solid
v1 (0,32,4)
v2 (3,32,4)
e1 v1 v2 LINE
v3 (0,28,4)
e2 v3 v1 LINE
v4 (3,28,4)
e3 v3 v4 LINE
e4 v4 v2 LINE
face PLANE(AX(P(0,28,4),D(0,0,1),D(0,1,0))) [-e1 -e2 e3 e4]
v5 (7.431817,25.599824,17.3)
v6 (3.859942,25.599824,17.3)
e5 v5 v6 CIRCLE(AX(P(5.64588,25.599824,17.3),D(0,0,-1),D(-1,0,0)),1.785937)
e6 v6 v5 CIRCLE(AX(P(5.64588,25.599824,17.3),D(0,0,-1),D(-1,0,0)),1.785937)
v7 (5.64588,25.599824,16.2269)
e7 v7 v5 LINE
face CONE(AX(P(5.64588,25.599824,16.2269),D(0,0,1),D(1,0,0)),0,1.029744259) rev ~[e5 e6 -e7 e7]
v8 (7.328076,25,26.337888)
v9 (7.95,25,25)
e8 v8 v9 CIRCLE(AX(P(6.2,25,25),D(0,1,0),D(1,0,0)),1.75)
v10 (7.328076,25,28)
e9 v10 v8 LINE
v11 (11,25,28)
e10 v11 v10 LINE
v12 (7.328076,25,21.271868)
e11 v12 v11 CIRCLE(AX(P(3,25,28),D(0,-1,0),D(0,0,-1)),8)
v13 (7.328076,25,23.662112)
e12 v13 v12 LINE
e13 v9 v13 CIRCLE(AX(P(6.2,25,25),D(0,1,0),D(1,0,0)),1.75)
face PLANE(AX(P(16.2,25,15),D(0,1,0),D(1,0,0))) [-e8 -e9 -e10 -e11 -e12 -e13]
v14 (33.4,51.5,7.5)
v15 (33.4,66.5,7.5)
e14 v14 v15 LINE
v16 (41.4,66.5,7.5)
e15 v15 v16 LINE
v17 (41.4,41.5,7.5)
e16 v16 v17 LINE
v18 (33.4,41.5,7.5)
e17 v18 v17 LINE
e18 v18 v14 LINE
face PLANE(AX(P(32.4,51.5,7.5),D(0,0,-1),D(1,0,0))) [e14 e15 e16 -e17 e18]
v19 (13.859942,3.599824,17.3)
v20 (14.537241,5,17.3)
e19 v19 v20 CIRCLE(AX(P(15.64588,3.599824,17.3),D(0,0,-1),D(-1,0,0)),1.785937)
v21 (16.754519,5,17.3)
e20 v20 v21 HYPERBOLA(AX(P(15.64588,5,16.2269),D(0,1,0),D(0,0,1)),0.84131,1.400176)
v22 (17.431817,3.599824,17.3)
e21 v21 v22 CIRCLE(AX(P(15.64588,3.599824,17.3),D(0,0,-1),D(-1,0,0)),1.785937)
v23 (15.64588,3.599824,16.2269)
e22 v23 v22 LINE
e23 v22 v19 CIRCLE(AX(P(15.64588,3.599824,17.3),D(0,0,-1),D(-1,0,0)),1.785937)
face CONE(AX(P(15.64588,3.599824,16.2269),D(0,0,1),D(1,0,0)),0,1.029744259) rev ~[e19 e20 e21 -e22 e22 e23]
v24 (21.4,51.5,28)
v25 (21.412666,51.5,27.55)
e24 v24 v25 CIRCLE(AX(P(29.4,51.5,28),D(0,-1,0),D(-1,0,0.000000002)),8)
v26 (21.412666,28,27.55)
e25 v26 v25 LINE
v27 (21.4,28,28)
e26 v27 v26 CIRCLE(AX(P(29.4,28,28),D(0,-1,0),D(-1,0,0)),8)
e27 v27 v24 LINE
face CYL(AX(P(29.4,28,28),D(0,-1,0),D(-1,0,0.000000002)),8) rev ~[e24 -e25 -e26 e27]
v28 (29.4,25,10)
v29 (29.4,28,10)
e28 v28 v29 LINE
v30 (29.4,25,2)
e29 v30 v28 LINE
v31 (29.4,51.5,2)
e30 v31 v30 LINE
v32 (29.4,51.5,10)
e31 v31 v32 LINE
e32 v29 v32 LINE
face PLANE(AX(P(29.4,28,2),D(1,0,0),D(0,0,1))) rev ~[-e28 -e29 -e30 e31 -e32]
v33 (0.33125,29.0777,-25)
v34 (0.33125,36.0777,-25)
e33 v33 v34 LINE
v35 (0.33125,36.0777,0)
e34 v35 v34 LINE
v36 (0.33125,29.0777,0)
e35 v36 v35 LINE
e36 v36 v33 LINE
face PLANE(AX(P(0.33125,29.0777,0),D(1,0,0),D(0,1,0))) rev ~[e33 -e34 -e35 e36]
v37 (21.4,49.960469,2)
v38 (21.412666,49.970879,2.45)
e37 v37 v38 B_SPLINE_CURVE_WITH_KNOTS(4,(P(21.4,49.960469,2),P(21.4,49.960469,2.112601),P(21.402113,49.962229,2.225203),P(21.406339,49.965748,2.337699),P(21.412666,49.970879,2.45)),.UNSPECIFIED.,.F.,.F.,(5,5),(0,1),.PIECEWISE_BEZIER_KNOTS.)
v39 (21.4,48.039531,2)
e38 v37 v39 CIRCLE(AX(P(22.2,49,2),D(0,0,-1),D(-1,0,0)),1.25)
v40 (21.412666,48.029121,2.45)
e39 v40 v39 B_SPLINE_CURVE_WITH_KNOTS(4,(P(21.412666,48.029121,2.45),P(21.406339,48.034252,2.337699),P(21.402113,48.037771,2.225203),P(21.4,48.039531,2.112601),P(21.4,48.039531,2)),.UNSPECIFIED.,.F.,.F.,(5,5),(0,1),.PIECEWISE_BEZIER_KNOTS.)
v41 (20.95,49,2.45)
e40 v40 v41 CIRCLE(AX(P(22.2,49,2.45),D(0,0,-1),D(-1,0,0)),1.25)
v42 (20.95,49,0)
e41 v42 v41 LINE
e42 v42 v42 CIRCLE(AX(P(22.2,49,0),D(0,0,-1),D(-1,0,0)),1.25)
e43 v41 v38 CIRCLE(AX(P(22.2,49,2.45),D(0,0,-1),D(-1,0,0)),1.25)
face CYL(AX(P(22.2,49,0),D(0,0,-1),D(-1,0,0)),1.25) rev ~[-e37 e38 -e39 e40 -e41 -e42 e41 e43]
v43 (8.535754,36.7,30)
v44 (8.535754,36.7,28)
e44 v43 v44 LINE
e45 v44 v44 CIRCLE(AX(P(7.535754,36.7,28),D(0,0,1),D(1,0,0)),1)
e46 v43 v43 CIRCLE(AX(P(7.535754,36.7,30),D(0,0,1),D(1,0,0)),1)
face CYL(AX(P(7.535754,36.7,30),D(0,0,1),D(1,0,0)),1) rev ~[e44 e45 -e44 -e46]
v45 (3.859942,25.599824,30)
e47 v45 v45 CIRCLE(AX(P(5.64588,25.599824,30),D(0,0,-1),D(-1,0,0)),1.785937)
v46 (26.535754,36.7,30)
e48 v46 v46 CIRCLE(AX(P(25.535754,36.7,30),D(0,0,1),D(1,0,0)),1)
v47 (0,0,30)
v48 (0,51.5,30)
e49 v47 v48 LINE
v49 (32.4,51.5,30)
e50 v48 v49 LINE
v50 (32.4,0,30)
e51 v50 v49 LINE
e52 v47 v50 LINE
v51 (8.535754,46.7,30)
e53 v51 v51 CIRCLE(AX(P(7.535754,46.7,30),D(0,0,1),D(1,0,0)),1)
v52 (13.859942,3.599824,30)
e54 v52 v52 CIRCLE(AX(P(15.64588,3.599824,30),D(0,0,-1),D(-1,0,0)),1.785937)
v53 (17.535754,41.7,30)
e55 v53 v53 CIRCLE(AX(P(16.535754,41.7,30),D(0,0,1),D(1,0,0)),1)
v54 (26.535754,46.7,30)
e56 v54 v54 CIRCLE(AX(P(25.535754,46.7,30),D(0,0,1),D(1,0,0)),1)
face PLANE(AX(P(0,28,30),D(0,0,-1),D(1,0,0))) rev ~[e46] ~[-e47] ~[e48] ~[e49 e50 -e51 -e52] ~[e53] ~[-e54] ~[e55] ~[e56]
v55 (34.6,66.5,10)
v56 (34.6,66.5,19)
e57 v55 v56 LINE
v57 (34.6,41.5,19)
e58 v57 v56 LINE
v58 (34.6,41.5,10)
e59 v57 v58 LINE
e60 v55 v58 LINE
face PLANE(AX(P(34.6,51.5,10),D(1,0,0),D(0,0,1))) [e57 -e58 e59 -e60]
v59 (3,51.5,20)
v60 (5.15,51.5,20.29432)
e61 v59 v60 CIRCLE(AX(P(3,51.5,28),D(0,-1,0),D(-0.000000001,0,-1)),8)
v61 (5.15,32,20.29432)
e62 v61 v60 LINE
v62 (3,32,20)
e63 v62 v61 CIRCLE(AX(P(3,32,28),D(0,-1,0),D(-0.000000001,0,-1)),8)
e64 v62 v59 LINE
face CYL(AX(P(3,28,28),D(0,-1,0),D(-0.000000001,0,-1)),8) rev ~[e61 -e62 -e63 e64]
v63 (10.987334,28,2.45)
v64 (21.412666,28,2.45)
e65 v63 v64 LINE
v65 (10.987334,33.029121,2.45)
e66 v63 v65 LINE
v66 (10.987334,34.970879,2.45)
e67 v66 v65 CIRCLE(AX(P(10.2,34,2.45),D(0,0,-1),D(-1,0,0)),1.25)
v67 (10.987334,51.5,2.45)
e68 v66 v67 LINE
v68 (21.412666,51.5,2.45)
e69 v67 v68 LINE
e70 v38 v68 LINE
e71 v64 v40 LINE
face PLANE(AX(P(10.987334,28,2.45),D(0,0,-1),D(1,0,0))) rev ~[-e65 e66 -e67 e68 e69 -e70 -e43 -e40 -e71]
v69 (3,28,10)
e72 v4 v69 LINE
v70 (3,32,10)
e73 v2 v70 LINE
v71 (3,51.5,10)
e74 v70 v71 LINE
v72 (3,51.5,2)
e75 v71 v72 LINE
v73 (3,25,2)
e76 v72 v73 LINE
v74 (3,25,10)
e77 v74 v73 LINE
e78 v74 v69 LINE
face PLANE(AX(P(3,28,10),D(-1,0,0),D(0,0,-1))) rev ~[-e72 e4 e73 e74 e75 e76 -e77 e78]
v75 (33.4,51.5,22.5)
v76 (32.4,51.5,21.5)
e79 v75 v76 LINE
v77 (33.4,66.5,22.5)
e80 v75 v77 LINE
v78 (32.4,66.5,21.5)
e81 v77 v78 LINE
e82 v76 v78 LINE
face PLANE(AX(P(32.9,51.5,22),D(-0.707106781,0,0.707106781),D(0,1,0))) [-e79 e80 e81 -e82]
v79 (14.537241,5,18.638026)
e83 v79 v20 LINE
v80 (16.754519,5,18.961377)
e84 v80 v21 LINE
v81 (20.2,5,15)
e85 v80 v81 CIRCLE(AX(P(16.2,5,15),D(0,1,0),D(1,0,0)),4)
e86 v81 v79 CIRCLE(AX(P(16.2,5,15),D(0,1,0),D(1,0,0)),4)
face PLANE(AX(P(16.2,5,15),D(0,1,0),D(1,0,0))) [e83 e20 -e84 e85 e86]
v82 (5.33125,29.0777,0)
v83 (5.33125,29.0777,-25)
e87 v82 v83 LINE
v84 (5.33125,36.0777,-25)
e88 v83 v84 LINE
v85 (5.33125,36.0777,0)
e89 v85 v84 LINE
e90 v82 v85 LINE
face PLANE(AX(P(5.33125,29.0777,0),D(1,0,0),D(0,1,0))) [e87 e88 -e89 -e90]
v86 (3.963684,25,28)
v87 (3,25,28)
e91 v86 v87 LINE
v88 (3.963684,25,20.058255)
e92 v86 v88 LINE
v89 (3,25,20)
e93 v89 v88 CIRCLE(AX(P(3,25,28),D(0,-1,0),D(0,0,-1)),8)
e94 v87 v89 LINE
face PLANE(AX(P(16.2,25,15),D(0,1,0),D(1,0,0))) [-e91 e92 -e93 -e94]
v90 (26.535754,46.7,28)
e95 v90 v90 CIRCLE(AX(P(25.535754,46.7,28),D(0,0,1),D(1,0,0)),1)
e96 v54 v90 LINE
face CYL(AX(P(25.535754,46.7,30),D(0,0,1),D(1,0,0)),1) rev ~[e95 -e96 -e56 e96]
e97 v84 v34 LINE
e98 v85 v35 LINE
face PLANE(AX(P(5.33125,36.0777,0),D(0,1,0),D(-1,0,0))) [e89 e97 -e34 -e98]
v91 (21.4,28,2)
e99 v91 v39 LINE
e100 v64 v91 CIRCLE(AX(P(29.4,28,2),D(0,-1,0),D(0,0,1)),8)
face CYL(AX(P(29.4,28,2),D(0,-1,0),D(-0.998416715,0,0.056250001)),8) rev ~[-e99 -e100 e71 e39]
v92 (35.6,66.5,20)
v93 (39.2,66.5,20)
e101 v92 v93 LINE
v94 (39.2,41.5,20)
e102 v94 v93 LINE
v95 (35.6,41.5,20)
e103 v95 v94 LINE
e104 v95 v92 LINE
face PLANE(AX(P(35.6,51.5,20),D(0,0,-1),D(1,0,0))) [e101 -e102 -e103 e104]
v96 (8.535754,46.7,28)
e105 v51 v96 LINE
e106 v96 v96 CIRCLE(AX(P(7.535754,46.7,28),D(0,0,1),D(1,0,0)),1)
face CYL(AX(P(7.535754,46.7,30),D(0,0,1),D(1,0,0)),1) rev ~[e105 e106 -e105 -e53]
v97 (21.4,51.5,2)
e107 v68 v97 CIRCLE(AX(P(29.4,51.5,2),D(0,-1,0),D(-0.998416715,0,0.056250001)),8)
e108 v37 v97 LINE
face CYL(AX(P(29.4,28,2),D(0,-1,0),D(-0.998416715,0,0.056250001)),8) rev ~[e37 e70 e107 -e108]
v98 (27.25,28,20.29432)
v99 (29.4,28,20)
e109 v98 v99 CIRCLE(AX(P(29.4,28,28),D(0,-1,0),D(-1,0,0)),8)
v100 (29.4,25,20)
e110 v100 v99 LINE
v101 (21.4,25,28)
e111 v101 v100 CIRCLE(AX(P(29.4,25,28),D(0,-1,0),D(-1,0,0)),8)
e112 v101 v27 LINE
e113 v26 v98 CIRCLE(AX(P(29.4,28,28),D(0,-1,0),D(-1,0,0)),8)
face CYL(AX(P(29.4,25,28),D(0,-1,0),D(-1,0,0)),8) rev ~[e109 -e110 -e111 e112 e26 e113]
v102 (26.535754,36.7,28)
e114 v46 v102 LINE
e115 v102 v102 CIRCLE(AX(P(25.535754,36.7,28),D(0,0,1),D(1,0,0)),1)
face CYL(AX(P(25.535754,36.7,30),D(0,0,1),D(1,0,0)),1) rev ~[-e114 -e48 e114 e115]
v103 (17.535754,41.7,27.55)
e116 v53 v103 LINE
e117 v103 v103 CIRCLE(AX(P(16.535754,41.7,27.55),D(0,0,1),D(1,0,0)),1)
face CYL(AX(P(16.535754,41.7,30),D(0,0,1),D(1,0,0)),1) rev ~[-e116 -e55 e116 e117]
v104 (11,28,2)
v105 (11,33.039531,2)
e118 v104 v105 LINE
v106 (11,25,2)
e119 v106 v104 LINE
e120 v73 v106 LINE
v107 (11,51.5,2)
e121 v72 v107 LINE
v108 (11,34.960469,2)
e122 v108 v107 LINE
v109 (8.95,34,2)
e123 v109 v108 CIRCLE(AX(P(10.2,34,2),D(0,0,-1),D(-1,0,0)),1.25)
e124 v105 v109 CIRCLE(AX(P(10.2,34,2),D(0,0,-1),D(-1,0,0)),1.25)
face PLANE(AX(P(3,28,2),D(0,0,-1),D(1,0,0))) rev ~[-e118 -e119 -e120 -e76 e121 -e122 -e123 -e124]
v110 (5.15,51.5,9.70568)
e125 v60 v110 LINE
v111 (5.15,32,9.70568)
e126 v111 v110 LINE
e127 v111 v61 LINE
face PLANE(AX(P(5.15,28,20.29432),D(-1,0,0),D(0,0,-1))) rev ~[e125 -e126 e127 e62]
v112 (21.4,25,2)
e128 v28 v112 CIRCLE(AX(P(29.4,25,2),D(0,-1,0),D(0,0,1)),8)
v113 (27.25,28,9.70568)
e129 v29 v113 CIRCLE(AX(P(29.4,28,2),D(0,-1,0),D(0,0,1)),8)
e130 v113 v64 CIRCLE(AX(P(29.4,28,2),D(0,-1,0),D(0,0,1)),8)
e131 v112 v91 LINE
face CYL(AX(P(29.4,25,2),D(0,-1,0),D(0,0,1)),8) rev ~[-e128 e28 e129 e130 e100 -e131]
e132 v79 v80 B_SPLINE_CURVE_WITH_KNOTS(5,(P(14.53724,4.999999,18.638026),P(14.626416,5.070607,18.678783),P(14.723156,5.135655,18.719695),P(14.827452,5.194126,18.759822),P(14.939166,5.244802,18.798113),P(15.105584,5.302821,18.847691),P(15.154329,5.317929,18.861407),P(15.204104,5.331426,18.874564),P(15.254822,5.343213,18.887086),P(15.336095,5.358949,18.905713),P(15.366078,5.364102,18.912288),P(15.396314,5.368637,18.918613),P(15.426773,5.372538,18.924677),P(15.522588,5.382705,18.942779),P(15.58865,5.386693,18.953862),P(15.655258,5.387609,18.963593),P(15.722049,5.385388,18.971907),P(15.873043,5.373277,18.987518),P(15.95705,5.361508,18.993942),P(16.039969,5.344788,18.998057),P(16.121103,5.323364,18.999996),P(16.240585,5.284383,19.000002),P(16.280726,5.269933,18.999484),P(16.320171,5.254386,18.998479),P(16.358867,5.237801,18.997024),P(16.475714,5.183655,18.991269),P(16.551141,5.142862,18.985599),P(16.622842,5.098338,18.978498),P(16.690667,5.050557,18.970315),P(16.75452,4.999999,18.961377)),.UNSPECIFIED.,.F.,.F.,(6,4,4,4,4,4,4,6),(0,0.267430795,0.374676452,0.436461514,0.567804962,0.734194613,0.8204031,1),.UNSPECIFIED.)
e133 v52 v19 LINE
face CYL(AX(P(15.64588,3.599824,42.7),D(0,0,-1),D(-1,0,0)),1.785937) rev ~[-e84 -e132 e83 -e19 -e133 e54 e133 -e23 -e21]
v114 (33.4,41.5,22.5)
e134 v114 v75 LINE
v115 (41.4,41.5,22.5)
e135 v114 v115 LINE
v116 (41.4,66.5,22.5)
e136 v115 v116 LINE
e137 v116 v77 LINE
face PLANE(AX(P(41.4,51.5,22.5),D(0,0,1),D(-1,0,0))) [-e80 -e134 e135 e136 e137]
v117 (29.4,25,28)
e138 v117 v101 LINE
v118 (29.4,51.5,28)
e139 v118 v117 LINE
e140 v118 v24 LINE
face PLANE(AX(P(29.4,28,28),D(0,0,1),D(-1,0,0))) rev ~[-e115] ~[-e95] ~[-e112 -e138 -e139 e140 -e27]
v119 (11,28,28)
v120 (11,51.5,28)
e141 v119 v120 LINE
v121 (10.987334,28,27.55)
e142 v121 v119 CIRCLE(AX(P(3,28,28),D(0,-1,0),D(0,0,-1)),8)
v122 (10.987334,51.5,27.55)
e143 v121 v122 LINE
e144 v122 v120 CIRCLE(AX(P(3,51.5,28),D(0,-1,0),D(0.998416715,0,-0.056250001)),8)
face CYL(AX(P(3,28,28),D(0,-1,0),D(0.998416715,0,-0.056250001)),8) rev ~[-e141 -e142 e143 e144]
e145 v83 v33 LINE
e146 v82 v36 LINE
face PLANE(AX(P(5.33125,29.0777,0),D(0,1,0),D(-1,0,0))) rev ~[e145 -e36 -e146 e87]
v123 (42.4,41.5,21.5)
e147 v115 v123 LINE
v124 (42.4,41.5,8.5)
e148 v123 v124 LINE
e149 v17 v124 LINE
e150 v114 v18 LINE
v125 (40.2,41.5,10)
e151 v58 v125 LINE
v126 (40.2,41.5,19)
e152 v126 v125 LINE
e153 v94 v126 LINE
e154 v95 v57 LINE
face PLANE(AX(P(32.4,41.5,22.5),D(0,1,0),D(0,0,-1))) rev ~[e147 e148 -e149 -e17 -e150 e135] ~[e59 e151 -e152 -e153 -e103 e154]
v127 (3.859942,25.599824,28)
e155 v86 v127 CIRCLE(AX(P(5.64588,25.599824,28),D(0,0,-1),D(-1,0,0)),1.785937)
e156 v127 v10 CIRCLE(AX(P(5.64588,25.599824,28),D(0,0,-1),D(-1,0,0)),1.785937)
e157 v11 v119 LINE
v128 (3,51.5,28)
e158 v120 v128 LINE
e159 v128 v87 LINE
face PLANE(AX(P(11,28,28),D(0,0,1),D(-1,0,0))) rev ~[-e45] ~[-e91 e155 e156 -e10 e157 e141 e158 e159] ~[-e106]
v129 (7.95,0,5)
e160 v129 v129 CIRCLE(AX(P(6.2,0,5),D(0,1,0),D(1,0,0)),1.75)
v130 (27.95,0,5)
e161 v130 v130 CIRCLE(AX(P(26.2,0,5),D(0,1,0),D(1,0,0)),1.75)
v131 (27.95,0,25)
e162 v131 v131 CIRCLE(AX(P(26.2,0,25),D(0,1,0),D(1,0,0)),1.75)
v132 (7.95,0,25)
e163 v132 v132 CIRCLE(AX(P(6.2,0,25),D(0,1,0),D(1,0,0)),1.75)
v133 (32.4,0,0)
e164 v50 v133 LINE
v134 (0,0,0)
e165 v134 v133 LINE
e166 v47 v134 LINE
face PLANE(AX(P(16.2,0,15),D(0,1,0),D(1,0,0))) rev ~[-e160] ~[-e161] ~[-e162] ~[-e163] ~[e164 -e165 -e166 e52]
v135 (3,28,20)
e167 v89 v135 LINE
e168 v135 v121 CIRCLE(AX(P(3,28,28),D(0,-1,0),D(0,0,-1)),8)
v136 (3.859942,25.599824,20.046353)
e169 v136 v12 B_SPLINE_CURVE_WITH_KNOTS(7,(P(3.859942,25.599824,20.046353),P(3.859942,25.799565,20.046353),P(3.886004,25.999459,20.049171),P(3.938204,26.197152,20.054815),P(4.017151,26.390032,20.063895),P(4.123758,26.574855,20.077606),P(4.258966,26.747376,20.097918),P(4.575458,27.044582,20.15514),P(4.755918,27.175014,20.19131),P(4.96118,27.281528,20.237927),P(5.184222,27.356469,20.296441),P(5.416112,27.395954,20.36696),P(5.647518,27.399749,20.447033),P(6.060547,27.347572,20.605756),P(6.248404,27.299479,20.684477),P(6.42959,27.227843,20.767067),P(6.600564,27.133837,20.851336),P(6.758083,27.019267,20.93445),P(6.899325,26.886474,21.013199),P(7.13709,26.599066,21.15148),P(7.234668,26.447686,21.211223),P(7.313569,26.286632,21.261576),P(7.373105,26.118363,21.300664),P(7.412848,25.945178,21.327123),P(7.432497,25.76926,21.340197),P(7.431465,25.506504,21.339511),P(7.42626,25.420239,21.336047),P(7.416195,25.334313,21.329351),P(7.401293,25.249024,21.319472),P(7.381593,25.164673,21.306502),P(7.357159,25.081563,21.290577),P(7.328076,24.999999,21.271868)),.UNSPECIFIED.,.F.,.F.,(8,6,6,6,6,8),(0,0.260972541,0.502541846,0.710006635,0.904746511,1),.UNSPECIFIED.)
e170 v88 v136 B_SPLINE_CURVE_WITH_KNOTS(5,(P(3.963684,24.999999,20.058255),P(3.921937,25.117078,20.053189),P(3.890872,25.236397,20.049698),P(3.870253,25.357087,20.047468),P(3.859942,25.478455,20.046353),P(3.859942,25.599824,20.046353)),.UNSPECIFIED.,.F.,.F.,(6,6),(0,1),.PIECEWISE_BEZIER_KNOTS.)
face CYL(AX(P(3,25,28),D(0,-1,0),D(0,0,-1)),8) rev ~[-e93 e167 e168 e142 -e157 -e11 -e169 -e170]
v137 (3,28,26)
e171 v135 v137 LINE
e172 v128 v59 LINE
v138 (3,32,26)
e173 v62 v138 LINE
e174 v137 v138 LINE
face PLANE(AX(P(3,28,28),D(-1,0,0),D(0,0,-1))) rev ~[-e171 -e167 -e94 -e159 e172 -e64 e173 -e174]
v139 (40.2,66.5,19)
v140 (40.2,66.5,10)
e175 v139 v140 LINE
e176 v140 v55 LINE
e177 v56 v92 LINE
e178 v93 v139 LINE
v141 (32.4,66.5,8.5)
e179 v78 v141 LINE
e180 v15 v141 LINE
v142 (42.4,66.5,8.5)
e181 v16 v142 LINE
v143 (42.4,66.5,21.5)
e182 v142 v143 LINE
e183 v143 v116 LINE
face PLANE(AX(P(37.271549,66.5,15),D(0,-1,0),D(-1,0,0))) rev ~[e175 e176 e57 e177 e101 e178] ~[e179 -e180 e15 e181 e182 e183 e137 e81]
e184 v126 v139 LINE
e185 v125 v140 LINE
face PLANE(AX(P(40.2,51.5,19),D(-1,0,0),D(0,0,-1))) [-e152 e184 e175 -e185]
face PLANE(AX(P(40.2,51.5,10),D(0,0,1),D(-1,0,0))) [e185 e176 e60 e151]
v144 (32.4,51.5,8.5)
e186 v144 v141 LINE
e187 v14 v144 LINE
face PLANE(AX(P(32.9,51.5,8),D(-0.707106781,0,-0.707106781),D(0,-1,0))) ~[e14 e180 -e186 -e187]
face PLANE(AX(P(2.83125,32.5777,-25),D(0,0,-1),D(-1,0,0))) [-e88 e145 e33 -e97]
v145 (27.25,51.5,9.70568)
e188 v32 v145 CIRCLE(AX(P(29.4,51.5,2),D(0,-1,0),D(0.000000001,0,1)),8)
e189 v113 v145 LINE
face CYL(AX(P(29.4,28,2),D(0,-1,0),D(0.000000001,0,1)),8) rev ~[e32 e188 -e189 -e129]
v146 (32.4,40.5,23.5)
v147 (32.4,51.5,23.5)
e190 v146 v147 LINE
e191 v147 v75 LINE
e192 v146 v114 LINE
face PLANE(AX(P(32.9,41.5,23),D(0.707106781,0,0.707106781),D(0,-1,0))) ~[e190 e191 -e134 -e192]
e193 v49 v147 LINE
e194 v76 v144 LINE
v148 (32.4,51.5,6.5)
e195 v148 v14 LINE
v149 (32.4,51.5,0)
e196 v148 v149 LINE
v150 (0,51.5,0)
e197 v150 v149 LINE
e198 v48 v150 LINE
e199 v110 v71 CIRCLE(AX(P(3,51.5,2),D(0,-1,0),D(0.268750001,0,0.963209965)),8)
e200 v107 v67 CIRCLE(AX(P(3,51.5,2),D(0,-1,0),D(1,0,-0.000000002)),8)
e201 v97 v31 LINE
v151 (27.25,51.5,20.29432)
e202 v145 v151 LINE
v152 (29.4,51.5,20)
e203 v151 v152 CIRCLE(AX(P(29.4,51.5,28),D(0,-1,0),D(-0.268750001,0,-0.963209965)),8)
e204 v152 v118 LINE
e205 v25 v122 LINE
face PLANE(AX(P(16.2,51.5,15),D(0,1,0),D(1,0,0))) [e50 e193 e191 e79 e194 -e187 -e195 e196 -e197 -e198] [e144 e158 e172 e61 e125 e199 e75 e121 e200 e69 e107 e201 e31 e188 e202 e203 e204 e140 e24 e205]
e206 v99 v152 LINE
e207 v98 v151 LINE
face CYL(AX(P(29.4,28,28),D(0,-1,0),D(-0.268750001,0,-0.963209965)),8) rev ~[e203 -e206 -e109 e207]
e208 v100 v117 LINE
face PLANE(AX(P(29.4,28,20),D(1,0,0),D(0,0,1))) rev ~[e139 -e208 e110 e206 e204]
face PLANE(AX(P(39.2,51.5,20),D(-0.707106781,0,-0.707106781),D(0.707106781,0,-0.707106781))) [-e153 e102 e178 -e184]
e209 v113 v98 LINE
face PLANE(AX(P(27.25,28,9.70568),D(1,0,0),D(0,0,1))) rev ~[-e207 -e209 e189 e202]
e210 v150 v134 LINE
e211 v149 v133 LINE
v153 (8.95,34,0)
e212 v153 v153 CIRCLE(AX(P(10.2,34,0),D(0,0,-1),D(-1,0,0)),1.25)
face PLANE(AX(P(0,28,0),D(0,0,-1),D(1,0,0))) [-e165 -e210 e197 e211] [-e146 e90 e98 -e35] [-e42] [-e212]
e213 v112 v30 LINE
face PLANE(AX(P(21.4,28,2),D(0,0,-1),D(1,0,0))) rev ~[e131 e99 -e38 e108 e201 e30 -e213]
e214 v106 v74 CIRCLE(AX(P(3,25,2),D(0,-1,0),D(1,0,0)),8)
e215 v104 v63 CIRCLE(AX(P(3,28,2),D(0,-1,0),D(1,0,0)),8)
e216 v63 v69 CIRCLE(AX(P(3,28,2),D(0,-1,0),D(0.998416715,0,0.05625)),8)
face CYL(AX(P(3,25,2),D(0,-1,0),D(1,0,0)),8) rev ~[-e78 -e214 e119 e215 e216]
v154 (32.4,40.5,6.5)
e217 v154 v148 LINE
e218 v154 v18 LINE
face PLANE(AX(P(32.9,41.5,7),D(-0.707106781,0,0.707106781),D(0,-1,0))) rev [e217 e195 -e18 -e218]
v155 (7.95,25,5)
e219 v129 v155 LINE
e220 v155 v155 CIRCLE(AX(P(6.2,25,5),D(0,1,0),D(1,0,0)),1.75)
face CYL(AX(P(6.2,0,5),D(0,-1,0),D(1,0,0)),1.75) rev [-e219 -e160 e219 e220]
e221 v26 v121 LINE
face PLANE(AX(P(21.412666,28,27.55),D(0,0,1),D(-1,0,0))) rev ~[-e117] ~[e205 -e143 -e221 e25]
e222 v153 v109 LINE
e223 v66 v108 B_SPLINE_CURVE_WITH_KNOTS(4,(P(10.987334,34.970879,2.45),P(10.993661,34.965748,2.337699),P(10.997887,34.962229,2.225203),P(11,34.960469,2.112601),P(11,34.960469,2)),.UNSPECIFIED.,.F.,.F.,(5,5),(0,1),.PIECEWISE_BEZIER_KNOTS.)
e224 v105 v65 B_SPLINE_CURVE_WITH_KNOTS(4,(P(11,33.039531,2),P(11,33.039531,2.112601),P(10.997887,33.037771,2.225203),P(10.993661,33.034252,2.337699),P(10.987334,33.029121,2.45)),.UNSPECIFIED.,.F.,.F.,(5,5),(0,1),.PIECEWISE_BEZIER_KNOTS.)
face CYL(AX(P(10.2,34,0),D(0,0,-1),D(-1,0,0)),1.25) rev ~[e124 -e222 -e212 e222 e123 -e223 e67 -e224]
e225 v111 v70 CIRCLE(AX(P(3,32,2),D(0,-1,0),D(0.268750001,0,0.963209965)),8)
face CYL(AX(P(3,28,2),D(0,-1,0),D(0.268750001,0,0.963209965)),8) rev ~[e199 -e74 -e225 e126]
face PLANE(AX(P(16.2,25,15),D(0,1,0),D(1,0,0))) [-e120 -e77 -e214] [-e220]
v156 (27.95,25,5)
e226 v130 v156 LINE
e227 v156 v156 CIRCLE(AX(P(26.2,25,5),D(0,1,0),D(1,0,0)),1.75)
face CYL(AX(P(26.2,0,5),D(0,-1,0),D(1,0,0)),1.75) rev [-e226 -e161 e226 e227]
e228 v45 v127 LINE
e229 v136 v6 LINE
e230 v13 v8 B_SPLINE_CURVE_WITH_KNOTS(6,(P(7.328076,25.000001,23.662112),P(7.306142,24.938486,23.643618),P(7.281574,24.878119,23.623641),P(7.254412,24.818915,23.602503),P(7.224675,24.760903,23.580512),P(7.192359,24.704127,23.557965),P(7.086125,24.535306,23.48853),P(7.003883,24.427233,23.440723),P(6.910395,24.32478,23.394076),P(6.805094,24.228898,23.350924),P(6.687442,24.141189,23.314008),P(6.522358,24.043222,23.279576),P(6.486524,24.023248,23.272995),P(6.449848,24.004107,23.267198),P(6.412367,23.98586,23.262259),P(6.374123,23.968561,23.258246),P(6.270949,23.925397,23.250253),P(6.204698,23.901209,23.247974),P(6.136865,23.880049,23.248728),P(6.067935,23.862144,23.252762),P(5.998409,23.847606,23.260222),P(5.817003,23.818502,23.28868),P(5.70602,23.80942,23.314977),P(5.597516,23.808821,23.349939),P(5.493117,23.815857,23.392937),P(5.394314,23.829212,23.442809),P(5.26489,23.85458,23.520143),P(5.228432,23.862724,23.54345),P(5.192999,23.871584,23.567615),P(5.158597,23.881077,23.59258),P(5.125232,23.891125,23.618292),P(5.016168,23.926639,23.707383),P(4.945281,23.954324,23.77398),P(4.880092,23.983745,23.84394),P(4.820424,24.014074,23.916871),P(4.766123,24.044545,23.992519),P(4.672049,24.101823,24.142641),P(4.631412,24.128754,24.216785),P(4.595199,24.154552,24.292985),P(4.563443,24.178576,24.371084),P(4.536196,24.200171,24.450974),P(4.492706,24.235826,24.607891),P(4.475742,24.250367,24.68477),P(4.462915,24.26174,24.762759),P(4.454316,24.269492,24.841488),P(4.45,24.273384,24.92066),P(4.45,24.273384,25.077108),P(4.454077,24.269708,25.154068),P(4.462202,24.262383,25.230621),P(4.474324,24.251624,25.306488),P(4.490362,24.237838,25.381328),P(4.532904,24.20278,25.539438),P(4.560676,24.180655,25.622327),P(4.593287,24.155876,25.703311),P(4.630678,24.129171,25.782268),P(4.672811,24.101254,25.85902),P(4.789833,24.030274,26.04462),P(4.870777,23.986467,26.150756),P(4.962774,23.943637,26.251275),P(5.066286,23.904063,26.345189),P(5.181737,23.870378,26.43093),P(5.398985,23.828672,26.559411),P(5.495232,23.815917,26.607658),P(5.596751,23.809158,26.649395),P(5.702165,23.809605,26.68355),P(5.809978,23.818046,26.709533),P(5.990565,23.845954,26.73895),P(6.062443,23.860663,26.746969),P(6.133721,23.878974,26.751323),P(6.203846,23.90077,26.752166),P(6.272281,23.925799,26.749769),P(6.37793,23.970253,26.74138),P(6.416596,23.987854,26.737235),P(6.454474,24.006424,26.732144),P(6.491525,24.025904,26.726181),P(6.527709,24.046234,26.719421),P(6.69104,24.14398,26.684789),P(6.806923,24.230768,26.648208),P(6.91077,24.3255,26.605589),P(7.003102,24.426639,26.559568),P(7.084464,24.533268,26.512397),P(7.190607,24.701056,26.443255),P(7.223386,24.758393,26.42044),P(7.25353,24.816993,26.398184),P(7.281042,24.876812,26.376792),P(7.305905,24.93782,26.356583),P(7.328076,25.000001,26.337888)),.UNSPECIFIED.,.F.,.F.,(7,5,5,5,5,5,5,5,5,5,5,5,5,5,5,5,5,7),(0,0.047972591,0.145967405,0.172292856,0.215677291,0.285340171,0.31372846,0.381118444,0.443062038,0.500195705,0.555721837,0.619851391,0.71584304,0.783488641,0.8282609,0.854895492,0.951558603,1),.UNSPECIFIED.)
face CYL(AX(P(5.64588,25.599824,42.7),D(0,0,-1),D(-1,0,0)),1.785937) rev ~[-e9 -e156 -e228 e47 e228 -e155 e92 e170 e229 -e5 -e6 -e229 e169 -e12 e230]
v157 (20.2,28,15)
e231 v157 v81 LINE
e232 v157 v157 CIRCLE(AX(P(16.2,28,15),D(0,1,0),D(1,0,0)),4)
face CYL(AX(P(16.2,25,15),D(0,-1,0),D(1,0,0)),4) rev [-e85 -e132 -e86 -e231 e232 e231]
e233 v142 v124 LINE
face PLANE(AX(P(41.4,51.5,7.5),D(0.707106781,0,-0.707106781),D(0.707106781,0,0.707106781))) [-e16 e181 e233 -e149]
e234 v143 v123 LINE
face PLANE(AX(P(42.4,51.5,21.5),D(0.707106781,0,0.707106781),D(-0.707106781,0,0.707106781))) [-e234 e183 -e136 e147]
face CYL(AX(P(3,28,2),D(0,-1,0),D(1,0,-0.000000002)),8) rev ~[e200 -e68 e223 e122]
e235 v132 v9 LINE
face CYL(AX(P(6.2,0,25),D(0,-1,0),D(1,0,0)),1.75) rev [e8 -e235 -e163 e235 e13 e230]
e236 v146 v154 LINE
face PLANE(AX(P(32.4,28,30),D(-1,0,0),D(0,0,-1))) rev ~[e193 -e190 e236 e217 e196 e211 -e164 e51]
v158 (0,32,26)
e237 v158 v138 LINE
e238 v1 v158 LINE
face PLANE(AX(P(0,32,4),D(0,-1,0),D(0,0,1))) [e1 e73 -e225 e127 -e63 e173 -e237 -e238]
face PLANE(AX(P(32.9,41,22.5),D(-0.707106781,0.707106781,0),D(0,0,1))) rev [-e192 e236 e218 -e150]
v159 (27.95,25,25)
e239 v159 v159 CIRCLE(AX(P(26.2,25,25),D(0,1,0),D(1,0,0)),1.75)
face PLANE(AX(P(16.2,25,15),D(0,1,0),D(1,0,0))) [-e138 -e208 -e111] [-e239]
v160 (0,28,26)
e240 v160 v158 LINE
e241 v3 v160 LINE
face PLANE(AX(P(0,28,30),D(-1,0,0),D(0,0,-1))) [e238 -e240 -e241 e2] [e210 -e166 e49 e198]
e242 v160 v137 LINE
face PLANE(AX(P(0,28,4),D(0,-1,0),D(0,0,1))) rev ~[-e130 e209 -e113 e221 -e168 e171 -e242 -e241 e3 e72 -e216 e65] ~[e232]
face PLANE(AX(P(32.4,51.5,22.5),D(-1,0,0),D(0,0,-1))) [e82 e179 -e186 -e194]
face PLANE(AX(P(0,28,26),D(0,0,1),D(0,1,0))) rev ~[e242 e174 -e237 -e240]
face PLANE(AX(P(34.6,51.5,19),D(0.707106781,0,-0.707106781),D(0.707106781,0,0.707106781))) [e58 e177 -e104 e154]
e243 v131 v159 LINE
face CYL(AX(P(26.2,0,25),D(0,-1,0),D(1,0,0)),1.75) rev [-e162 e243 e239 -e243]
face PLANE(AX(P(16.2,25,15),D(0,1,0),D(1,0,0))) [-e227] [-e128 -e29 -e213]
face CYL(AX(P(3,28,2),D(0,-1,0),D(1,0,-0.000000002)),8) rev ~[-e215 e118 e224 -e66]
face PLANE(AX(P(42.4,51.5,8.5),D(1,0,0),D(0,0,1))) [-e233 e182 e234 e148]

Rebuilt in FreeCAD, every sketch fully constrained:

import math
import FreeCAD as App
import Part
import Sketcher
from FreeCAD import Vector


def edges_at(feature, points):
    """Names of the edges that pass closest to the given points."""
    edges = feature.Shape.Edges
    near = lambda p: min(range(len(edges)), key=lambda i: edges[i].distToShape(Part.Vertex(*p))[0])
    return sorted({f"Edge{near(p) + 1}" for p in points})


def add_polygon(sketch, points):
    """Adds a closed chain of lines whose ends are joined by coincident constraints."""
    first, n = sketch.GeometryCount, len(points)
    for a, b in zip(points, points[1:] + points[:1]):
        sketch.addGeometry(Part.LineSegment(App.Vector(*a, 0), App.Vector(*b, 0)), False)
    for i in range(n):
        sketch.addConstraint(Sketcher.Constraint("Coincident", first + i, 2, first + (i + 1) % n, 1))

doc = App.newDocument("Part")
body = doc.addObject("PartDesign::Body", "Body")

sketch1 = doc.addObject("Sketcher::SketchObject", "Sketch")
body.addObject(sketch1)
sketch1.AttachmentSupport = (doc.XZ_Plane, [""])
sketch1.MapMode = "FlatFace"
add_polygon(sketch1, [(0, 0), (0, 30), (32.4, 30), (32.4, 0)])
sketch1.addGeometry(Part.Circle(Vector(6.2, 25, 0), Vector(0, 0, 1), 1.8), False)
sketch1.addGeometry(Part.Circle(Vector(26.2, 25, 0), Vector(0, 0, 1), 1.8), False)
sketch1.addGeometry(Part.Circle(Vector(6.2, 5, 0), Vector(0, 0, 1), 1.8), False)
sketch1.addGeometry(Part.Circle(Vector(26.2, 5, 0), Vector(0, 0, 1), 1.8), False)
sketch1.addConstraint([
    Sketcher.Constraint("Vertical", 0),
    Sketcher.Constraint("Horizontal", 1),
    Sketcher.Constraint("Vertical", 2),
    Sketcher.Constraint("Horizontal", 3),
    Sketcher.Constraint("Coincident", 3, 2, -1, 1),
    Sketcher.Constraint("Equal", 4, 5),
    Sketcher.Constraint("Equal", 5, 6),
    Sketcher.Constraint("Equal", 6, 7),
    Sketcher.Constraint("Horizontal", 4, 3, 5, 3),
    Sketcher.Constraint("Horizontal", 6, 3, 7, 3),
    Sketcher.Constraint("Vertical", 4, 3, 6, 3),
    Sketcher.Constraint("Vertical", 5, 3, 7, 3),
    Sketcher.Constraint("Diameter", 4, 3.5),
    Sketcher.Constraint("DistanceY", 0, 1, 0, 2, 30.0),
    Sketcher.Constraint("DistanceX", 1, 1, 1, 2, 32.4),
    Sketcher.Constraint("DistanceY", -1, 1, 4, 3, 25.0),
    Sketcher.Constraint("DistanceY", -1, 1, 6, 3, 5.0),
    Sketcher.Constraint("DistanceX", 4, 3, 5, 3, 20.0),
    Sketcher.Constraint("DistanceX", -1, 1, 4, 3, 6.2),
])
pad1 = doc.addObject("PartDesign::Pad", "Pad")
body.addObject(pad1)
pad1.Profile = sketch1
pad1.Length = 25
pad1.Reversed = True

sketch2 = doc.addObject("Sketcher::SketchObject", "Sketch001")
body.addObject(sketch2)
sketch2.AttachmentSupport = (doc.XZ_Plane, [""])
sketch2.MapMode = "FlatFace"
sketch2.AttachmentOffset = App.Placement(Vector(0, 0, -25), App.Rotation())
sketch2.addGeometry(Part.Circle(Vector(16.2, 15, 0), Vector(0, 0, 1), 4), False)
sketch2.addConstraint([
    Sketcher.Constraint("Diameter", 0, 8.0),
    Sketcher.Constraint("DistanceY", -1, 1, 0, 3, 15.0),
    Sketcher.Constraint("DistanceX", -1, 1, 0, 3, 16.2),
])
pocket1 = doc.addObject("PartDesign::Pocket", "Pocket")
body.addObject(pocket1)
pocket1.Profile = sketch2
pocket1.Length = 20
pocket1.Reversed = True

sketch3 = doc.addObject("Sketcher::SketchObject", "Sketch002")
body.addObject(sketch3)
sketch3.AttachmentSupport = (doc.XZ_Plane, [""])
sketch3.MapMode = "FlatFace"
sketch3.AttachmentOffset = App.Placement(Vector(0, 0, -25), App.Rotation())
add_polygon(sketch3, [(0, 0), (0, 30), (32.4, 30), (32.4, 0)])
sketch3.addGeometry(Part.LineSegment(Vector(3, 28, 0), Vector(3, 20, 0)), False)
sketch3.addGeometry(Part.ArcOfCircle(Part.Circle(Vector(3, 28, 0), Vector(0, 0, 1), 8), math.radians(-90), math.radians(0)), False)
sketch3.addGeometry(Part.LineSegment(Vector(11, 28, 0), Vector(3, 28, 0)), False)
sketch3.addGeometry(Part.LineSegment(Vector(29.4, 20, 0), Vector(29.4, 28, 0)), False)
sketch3.addGeometry(Part.LineSegment(Vector(29.4, 28, 0), Vector(21.4, 28, 0)), False)
sketch3.addGeometry(Part.ArcOfCircle(Part.Circle(Vector(29.4, 28, 0), Vector(0, 0, 1), 8), math.radians(-180), math.radians(-90)), False)
sketch3.addGeometry(Part.LineSegment(Vector(3, 10, 0), Vector(3, 2, 0)), False)
sketch3.addGeometry(Part.LineSegment(Vector(3, 2, 0), Vector(11, 2, 0)), False)
sketch3.addGeometry(Part.ArcOfCircle(Part.Circle(Vector(3, 2, 0), Vector(0, 0, 1), 8), math.radians(0), math.radians(90)), False)
sketch3.addGeometry(Part.Circle(Vector(16.2, 15, 0), Vector(0, 0, 1), 4), False)
sketch3.addGeometry(Part.LineSegment(Vector(21.4, 2, 0), Vector(29.4, 2, 0)), False)
sketch3.addGeometry(Part.LineSegment(Vector(29.4, 2, 0), Vector(29.4, 10, 0)), False)
sketch3.addGeometry(Part.ArcOfCircle(Part.Circle(Vector(29.4, 2, 0), Vector(0, 0, 1), 8), math.radians(90), math.radians(180)), False)
sketch3.addConstraint([
    Sketcher.Constraint("Coincident", 4, 2, 5, 1),
    Sketcher.Constraint("Coincident", 5, 2, 6, 1),
    Sketcher.Constraint("Coincident", 6, 2, 4, 1),
    Sketcher.Constraint("Coincident", 7, 2, 8, 1),
    Sketcher.Constraint("Coincident", 8, 2, 9, 1),
    Sketcher.Constraint("Coincident", 9, 2, 7, 1),
    Sketcher.Constraint("Coincident", 10, 2, 11, 1),
    Sketcher.Constraint("Coincident", 11, 2, 12, 1),
    Sketcher.Constraint("Coincident", 12, 2, 10, 1),
    Sketcher.Constraint("Coincident", 14, 2, 15, 1),
    Sketcher.Constraint("Coincident", 15, 2, 16, 1),
    Sketcher.Constraint("Coincident", 16, 2, 14, 1),
    Sketcher.Constraint("Vertical", 0),
    Sketcher.Constraint("Horizontal", 1),
    Sketcher.Constraint("Vertical", 2),
    Sketcher.Constraint("Horizontal", 3),
    Sketcher.Constraint("Vertical", 4),
    Sketcher.Constraint("Horizontal", 6),
    Sketcher.Constraint("Vertical", 7),
    Sketcher.Constraint("Horizontal", 8),
    Sketcher.Constraint("Vertical", 10),
    Sketcher.Constraint("Horizontal", 11),
    Sketcher.Constraint("Horizontal", 14),
    Sketcher.Constraint("Vertical", 15),
    Sketcher.Constraint("Coincident", 3, 2, -1, 1),
    Sketcher.Constraint("Coincident", 6, 2, 5, 3),
    Sketcher.Constraint("Coincident", 7, 2, 9, 3),
    Sketcher.Constraint("Coincident", 10, 2, 12, 3),
    Sketcher.Constraint("Coincident", 14, 2, 16, 3),
    Sketcher.Constraint("Equal", 5, 9),
    Sketcher.Constraint("Equal", 9, 12),
    Sketcher.Constraint("Equal", 12, 16),
    Sketcher.Constraint("Horizontal", 5, 3, 9, 3),
    Sketcher.Constraint("Horizontal", 12, 3, 16, 3),
    Sketcher.Constraint("Vertical", 5, 3, 12, 3),
    Sketcher.Constraint("Vertical", 9, 3, 16, 3),
    Sketcher.Constraint("Diameter", 13, 8.0),
    Sketcher.Constraint("Radius", 5, 8.0),
    Sketcher.Constraint("DistanceY", 0, 1, 0, 2, 30.0),
    Sketcher.Constraint("DistanceX", 1, 1, 1, 2, 32.4),
    Sketcher.Constraint("DistanceX", -1, 1, 5, 3, 3.0),
    Sketcher.Constraint("DistanceY", -1, 1, 5, 3, 28.0),
    Sketcher.Constraint("DistanceY", -1, 1, 12, 3, 2.0),
    Sketcher.Constraint("DistanceY", -1, 1, 13, 3, 15.0),
    Sketcher.Constraint("DistanceX", 9, 3, 1, 2, 3.0),
    Sketcher.Constraint("DistanceX", -1, 1, 13, 3, 16.2),
])
pad2 = doc.addObject("PartDesign::Pad", "Pad001")
body.addObject(pad2)
pad2.Profile = sketch3
pad2.Length = 3
pad2.Reversed = True

sketch4 = doc.addObject("Sketcher::SketchObject", "Sketch003")
body.addObject(sketch4)
sketch4.AttachmentSupport = (doc.XZ_Plane, [""])
sketch4.MapMode = "FlatFace"
sketch4.AttachmentOffset = App.Placement(Vector(0, 0, -28), App.Rotation())
add_polygon(sketch4, [(0, 0), (0, 30), (32.4, 30), (32.4, 0)])
sketch4.addGeometry(Part.ArcOfCircle(Part.Circle(Vector(3, 28, 0), Vector(0, 0, 1), 8), math.radians(-90), math.radians(-74.41)), False)
sketch4.addGeometry(Part.LineSegment(Vector(5.15, 20.29, 0), Vector(5.15, 9.71, 0)), False)
sketch4.addGeometry(Part.ArcOfCircle(Part.Circle(Vector(3, 2, 0), Vector(0, 0, 1), 8), math.radians(74.41), math.radians(90)), False)
sketch4.addGeometry(Part.LineSegment(Vector(3, 10, 0), Vector(3, 2, 0)), False)
sketch4.addGeometry(Part.LineSegment(Vector(3, 2, 0), Vector(11, 2, 0)), False)
sketch4.addGeometry(Part.ArcOfCircle(Part.Circle(Vector(3, 2, 0), Vector(0, 0, 1), 8), math.radians(0), math.radians(3.22)), False)
sketch4.addGeometry(Part.LineSegment(Vector(10.99, 2.45, 0), Vector(21.41, 2.45, 0)), False)
sketch4.addGeometry(Part.ArcOfCircle(Part.Circle(Vector(29.4, 2, 0), Vector(0, 0, 1), 8), math.radians(176.78), math.radians(180)), False)
sketch4.addGeometry(Part.LineSegment(Vector(21.4, 2, 0), Vector(29.4, 2, 0)), False)
sketch4.addGeometry(Part.LineSegment(Vector(29.4, 2, 0), Vector(29.4, 10, 0)), False)
sketch4.addGeometry(Part.ArcOfCircle(Part.Circle(Vector(29.4, 2, 0), Vector(0, 0, 1), 8), math.radians(90), math.radians(105.59)), False)
sketch4.addGeometry(Part.LineSegment(Vector(27.25, 9.71, 0), Vector(27.25, 20.29, 0)), False)
sketch4.addGeometry(Part.ArcOfCircle(Part.Circle(Vector(29.4, 28, 0), Vector(0, 0, 1), 8), math.radians(-105.59), math.radians(-90)), False)
sketch4.addGeometry(Part.LineSegment(Vector(29.4, 20, 0), Vector(29.4, 28, 0)), False)
sketch4.addGeometry(Part.LineSegment(Vector(29.4, 28, 0), Vector(21.4, 28, 0)), False)
sketch4.addGeometry(Part.ArcOfCircle(Part.Circle(Vector(29.4, 28, 0), Vector(0, 0, 1), 8), math.radians(180), math.radians(183.22)), False)
sketch4.addGeometry(Part.LineSegment(Vector(21.41, 27.55, 0), Vector(10.99, 27.55, 0)), False)
sketch4.addGeometry(Part.ArcOfCircle(Part.Circle(Vector(3, 28, 0), Vector(0, 0, 1), 8), math.radians(-3.22), math.radians(0)), False)
sketch4.addGeometry(Part.LineSegment(Vector(11, 28, 0), Vector(3, 28, 0)), False)
sketch4.addGeometry(Part.LineSegment(Vector(3, 28, 0), Vector(3, 20, 0)), False)
sketch4.addConstraint([
    Sketcher.Constraint("Coincident", 4, 2, 5, 1),
    Sketcher.Constraint("Coincident", 5, 2, 6, 1),
    Sketcher.Constraint("Coincident", 6, 2, 7, 1),
    Sketcher.Constraint("Coincident", 7, 2, 8, 1),
    Sketcher.Constraint("Coincident", 8, 2, 9, 1),
    Sketcher.Constraint("Coincident", 9, 2, 10, 1),
    Sketcher.Constraint("Coincident", 10, 2, 11, 1),
    Sketcher.Constraint("Coincident", 11, 2, 12, 1),
    Sketcher.Constraint("Coincident", 12, 2, 13, 1),
    Sketcher.Constraint("Coincident", 13, 2, 14, 1),
    Sketcher.Constraint("Coincident", 14, 2, 15, 1),
    Sketcher.Constraint("Coincident", 15, 2, 16, 1),
    Sketcher.Constraint("Coincident", 16, 2, 17, 1),
    Sketcher.Constraint("Coincident", 17, 2, 18, 1),
    Sketcher.Constraint("Coincident", 18, 2, 19, 1),
    Sketcher.Constraint("Coincident", 19, 2, 20, 1),
    Sketcher.Constraint("Coincident", 20, 2, 21, 1),
    Sketcher.Constraint("Coincident", 21, 2, 22, 1),
    Sketcher.Constraint("Coincident", 22, 2, 23, 1),
    Sketcher.Constraint("Coincident", 23, 2, 4, 1),
    Sketcher.Constraint("Vertical", 0),
    Sketcher.Constraint("Horizontal", 1),
    Sketcher.Constraint("Vertical", 2),
    Sketcher.Constraint("Horizontal", 3),
    Sketcher.Constraint("Vertical", 5),
    Sketcher.Constraint("Vertical", 7),
    Sketcher.Constraint("Horizontal", 8),
    Sketcher.Constraint("Horizontal", 10),
    Sketcher.Constraint("Horizontal", 12),
    Sketcher.Constraint("Vertical", 13),
    Sketcher.Constraint("Vertical", 15),
    Sketcher.Constraint("Vertical", 17),
    Sketcher.Constraint("Horizontal", 18),
    Sketcher.Constraint("Horizontal", 20),
    Sketcher.Constraint("Horizontal", 22),
    Sketcher.Constraint("Vertical", 23),
    Sketcher.Constraint("Coincident", 3, 2, -1, 1),
    Sketcher.Constraint("Coincident", 9, 3, 6, 3),
    Sketcher.Constraint("Coincident", 14, 3, 11, 3),
    Sketcher.Constraint("Coincident", 19, 3, 16, 3),
    Sketcher.Constraint("Coincident", 21, 3, 4, 3),
    Sketcher.Constraint("Coincident", 7, 2, 6, 3),
    Sketcher.Constraint("Coincident", 12, 2, 11, 3),
    Sketcher.Constraint("Coincident", 17, 2, 16, 3),
    Sketcher.Constraint("Coincident", 22, 2, 4, 3),
    Sketcher.Constraint("Equal", 4, 6),
    Sketcher.Constraint("Equal", 6, 9),
    Sketcher.Constraint("Equal", 9, 11),
    Sketcher.Constraint("Equal", 11, 14),
    Sketcher.Constraint("Equal", 14, 16),
    Sketcher.Constraint("Equal", 16, 19),
    Sketcher.Constraint("Equal", 19, 21),
    Sketcher.Constraint("Horizontal", 9, 3, 11, 3),
    Sketcher.Constraint("Horizontal", 4, 3, 16, 3),
    Sketcher.Constraint("Horizontal", 5, 2, 14, 2),
    Sketcher.Constraint("Horizontal", 4, 2, 15, 2),
    Sketcher.Constraint("Vertical", 4, 3, 6, 3),
    Sketcher.Constraint("Vertical", 10, 2, 19, 2),
    Sketcher.Constraint("Radius", 4, 8.0),
    Sketcher.Constraint("DistanceY", 0, 1, 0, 2, 30.0),
    Sketcher.Constraint("DistanceX", 1, 1, 1, 2, 32.4),
    Sketcher.Constraint("DistanceX", -1, 1, 4, 3, 3.0),
    Sketcher.Constraint("DistanceY", -1, 1, 4, 3, 28.0),
    Sketcher.Constraint("DistanceY", -1, 1, 6, 3, 2.0),
    Sketcher.Constraint("DistanceX", 16, 3, 1, 2, 3.0),
    Sketcher.Constraint("DistanceX", -1, 1, 4, 2, 5.15),
    Sketcher.Constraint("DistanceY", -1, 1, 9, 2, 2.45),
])
pad3 = doc.addObject("PartDesign::Pad", "Pad002")
body.addObject(pad3)
pad3.Profile = sketch4
pad3.Length = 23.5
pad3.Reversed = True

sketch5 = doc.addObject("Sketcher::SketchObject", "Sketch004")
body.addObject(sketch5)
sketch5.AttachmentSupport = (doc.XY_Plane, [""])
sketch5.MapMode = "FlatFace"
sketch5.addGeometry([
    Part.Circle(Vector(22.2, 49, 0), Vector(0, 0, 1), 1.2),
    Part.Circle(Vector(10.2, 34, 0), Vector(0, 0, 1), 1.2),
], False)
sketch5.addConstraint([
    Sketcher.Constraint("Equal", 0, 1),
    Sketcher.Constraint("Diameter", 0, 2.5),
    Sketcher.Constraint("DistanceY", -1, 1, 0, 3, 49.0),
    Sketcher.Constraint("DistanceY", -1, 1, 1, 3, 34.0),
    Sketcher.Constraint("DistanceX", 1, 3, 0, 3, 12.0),
    Sketcher.Constraint("DistanceX", -1, 1, 0, 3, 22.2),
])
pocket2 = doc.addObject("PartDesign::Pocket", "Pocket001")
body.addObject(pocket2)
pocket2.Profile = sketch5
pocket2.Length = 2.45
pocket2.Reversed = True

sketch6 = doc.addObject("Sketcher::SketchObject", "Sketch005")
body.addObject(sketch6)
sketch6.AttachmentSupport = (doc.YZ_Plane, [""])
sketch6.MapMode = "FlatFace"
add_polygon(sketch6, [(32, 4), (28, 4), (28, 26), (32, 26)])
sketch6.addConstraint([
    Sketcher.Constraint("Horizontal", 0),
    Sketcher.Constraint("Vertical", 1),
    Sketcher.Constraint("Horizontal", 2),
    Sketcher.Constraint("Vertical", 3),
    Sketcher.Constraint("DistanceX", 0, 2, 0, 1, 4.0),
    Sketcher.Constraint("DistanceY", 1, 1, 1, 2, 22.0),
    Sketcher.Constraint("DistanceX", -1, 1, 0, 2, 28.0),
    Sketcher.Constraint("DistanceY", -1, 1, 0, 2, 4.0),
])
pocket3 = doc.addObject("PartDesign::Pocket", "Pocket002")
body.addObject(pocket3)
pocket3.Profile = sketch6
pocket3.Length = 5.15
pocket3.Reversed = True

sketch7 = doc.addObject("Sketcher::SketchObject", "Sketch006")
body.addObject(sketch7)
sketch7.AttachmentSupport = (doc.YZ_Plane, [""])
sketch7.MapMode = "FlatFace"
sketch7.AttachmentOffset = App.Placement(Vector(0, 0, 32.4), App.Rotation())
add_polygon(sketch7, [(52, 22), (42, 22), (42, 8), (52, 8)])
sketch7.addConstraint([
    Sketcher.Constraint("Horizontal", 0),
    Sketcher.Constraint("Vertical", 1),
    Sketcher.Constraint("Horizontal", 2),
    Sketcher.Constraint("Vertical", 3),
    Sketcher.Constraint("DistanceX", 0, 2, 0, 1, 10.0),
    Sketcher.Constraint("DistanceY", 1, 2, 1, 1, 15.0),
    Sketcher.Constraint("DistanceX", -1, 1, 0, 2, 41.5),
    Sketcher.Constraint("DistanceY", -1, 1, 0, 2, 22.5),
])
pad4 = doc.addObject("PartDesign::Pad", "Pad003")
body.addObject(pad4)
pad4.Profile = sketch7
pad4.Length = 10

sketch8 = doc.addObject("Sketcher::SketchObject", "Sketch007")
body.addObject(sketch8)
sketch8.AttachmentSupport = (doc.XZ_Plane, [""])
sketch8.MapMode = "FlatFace"
sketch8.AttachmentOffset = App.Placement(Vector(0, 0, -51.5), App.Rotation())
add_polygon(sketch8, [(35, 10), (35, 20), (40, 20), (40, 10)])
sketch8.addConstraint([
    Sketcher.Constraint("Vertical", 0),
    Sketcher.Constraint("Horizontal", 1),
    Sketcher.Constraint("Vertical", 2),
    Sketcher.Constraint("Horizontal", 3),
    Sketcher.Constraint("DistanceY", 0, 1, 0, 2, 10.0),
    Sketcher.Constraint("DistanceX", 1, 1, 1, 2, 5.6),
    Sketcher.Constraint("DistanceY", -1, 1, 0, 2, 20.0),
    Sketcher.Constraint("DistanceX", -1, 1, 0, 2, 34.6),
])
pocket4 = doc.addObject("PartDesign::Pocket", "Pocket003")
body.addObject(pocket4)
pocket4.Profile = sketch8
pocket4.Length = 15
pocket4.Reversed = True
doc.recompute()

chamfer = doc.addObject("PartDesign::Chamfer", "Chamfer")
body.addObject(chamfer)
chamfer.Base = (pocket4, edges_at(pocket4, [(34.6, 46.5, 20), (40.2, 46.5, 20)]))
chamfer.Size = 1

sketch9 = doc.addObject("Sketcher::SketchObject", "Sketch008")
body.addObject(sketch9)
sketch9.AttachmentSupport = (doc.XY_Plane, [""])
sketch9.MapMode = "FlatFace"
sketch9.AttachmentOffset = App.Placement(Vector(0, 0, 30), App.Rotation())
sketch9.addGeometry([
    Part.Circle(Vector(7.5, 46.7, 0), Vector(0, 0, 1), 1),
    Part.Circle(Vector(25.5, 46.7, 0), Vector(0, 0, 1), 1),
    Part.Circle(Vector(7.5, 36.7, 0), Vector(0, 0, 1), 1),
    Part.Circle(Vector(25.5, 36.7, 0), Vector(0, 0, 1), 1),
    Part.Circle(Vector(16.5, 41.7, 0), Vector(0, 0, 1), 1),
], False)
sketch9.addConstraint([
    Sketcher.Constraint("Equal", 0, 1),
    Sketcher.Constraint("Equal", 1, 2),
    Sketcher.Constraint("Equal", 2, 3),
    Sketcher.Constraint("Equal", 3, 4),
    Sketcher.Constraint("Horizontal", 0, 3, 1, 3),
    Sketcher.Constraint("Horizontal", 2, 3, 3, 3),
    Sketcher.Constraint("Vertical", 0, 3, 2, 3),
    Sketcher.Constraint("Vertical", 1, 3, 3, 3),
    Sketcher.Constraint("Diameter", 0, 2.0),
    Sketcher.Constraint("DistanceX", 0, 3, 1, 3, 18.0),
    Sketcher.Constraint("DistanceY", 2, 3, 0, 3, 10.0),
    Sketcher.Constraint("DistanceX", 0, 3, 4, 3, 9.0),
    Sketcher.Constraint("DistanceY", 4, 3, 0, 3, 5.0),
    Sketcher.Constraint("DistanceY", -1, 1, 0, 3, 46.7),
    Sketcher.Constraint("DistanceX", -1, 1, 0, 3, 7.535754),
])
pocket5 = doc.addObject("PartDesign::Pocket", "Pocket004")
body.addObject(pocket5)
pocket5.Profile = sketch9
pocket5.Length = 5
doc.recompute()

chamfer2 = doc.addObject("PartDesign::Chamfer", "Chamfer001")
body.addObject(chamfer2)
chamfer2.Base = (pocket5, edges_at(pocket5, [
    (32.4, 46.5, 7.5),
    (32.4, 46.5, 22.5),
    (32.4, 41.5, 15),
    (42.4, 46.5, 7.5),
    (42.4, 46.5, 22.5),
]))
chamfer2.Size = 1

sketch10 = doc.addObject("Sketcher::SketchObject", "Sketch009")
body.addObject(sketch10)
sketch10.AttachmentSupport = (doc.XZ_Plane, [""])
sketch10.MapMode = "FlatFace"
sketch10.AttachmentOffset = App.Placement(Vector(0, 0, -51.5), App.Rotation())
add_polygon(sketch10, [(41.4, 7.5), (32.4, 7.5), (32.4, 22.5), (41.4, 22.5), (42.4, 21.5), (42.4, 8.5)])
add_polygon(sketch10, [(34.6, 10), (40.2, 10), (40.2, 19), (39.2, 20), (35.6, 20), (34.6, 19)])
sketch10.addConstraint([
    Sketcher.Constraint("Horizontal", 0),
    Sketcher.Constraint("Vertical", 1),
    Sketcher.Constraint("Horizontal", 2),
    Sketcher.Constraint("Vertical", 4),
    Sketcher.Constraint("Horizontal", 6),
    Sketcher.Constraint("Vertical", 7),
    Sketcher.Constraint("Horizontal", 9),
    Sketcher.Constraint("Vertical", 11),
    Sketcher.Constraint("Perpendicular", 3, 5),
    Sketcher.Constraint("Perpendicular", 5, 8),
    Sketcher.Constraint("Perpendicular", 8, 10),
    Sketcher.Constraint("Horizontal", 7, 2, 10, 2),
    Sketcher.Constraint("Vertical", 2, 2, 5, 2),
    Sketcher.Constraint("Equal", 2, 7),
    Sketcher.Constraint("Equal", 3, 5),
    Sketcher.Constraint("Equal", 5, 8),
    Sketcher.Constraint("DistanceX", 0, 2, 0, 1, 9.0),
    Sketcher.Constraint("DistanceY", 1, 1, 1, 2, 15.0),
    Sketcher.Constraint("DistanceY", 4, 2, 4, 1, 13.0),
    Sketcher.Constraint("DistanceX", 6, 1, 6, 2, 5.6),
    Sketcher.Constraint("DistanceY", -1, 1, 6, 2, 10.0),
    Sketcher.Constraint("DistanceX", -1, 1, 0, 2, 32.4),
    Sketcher.Constraint("DistanceY", -1, 1, 0, 2, 7.5),
    Sketcher.Constraint("DistanceX", -1, 1, 6, 2, 40.2),
])
pad5 = doc.addObject("PartDesign::Pad", "Pad004")
body.addObject(pad5)
pad5.Profile = sketch10
pad5.Length = 15
pad5.Reversed = True
doc.recompute()

chamfer3 = doc.addObject("PartDesign::Chamfer", "Chamfer002")
body.addObject(chamfer3)
chamfer3.Base = (pad5, edges_at(pad5, [(32.4, 59, 7.5), (32.4, 59, 22.5)]))
chamfer3.Size = 1

sketch11 = doc.addObject("Sketcher::SketchObject", "Sketch010")
body.addObject(sketch11)
sketch11.AttachmentSupport = (doc.XY_Plane, [""])
sketch11.MapMode = "FlatFace"
sketch11.AttachmentOffset = App.Placement(Vector(0, 0, 30), App.Rotation())
sketch11.addGeometry([
    Part.Circle(Vector(5.6, 25.6, 0), Vector(0, 0, 1), 1.8),
    Part.Circle(Vector(15.6, 3.6, 0), Vector(0, 0, 1), 1.8),
], False)
sketch11.addConstraint([
    Sketcher.Constraint("Equal", 0, 1),
    Sketcher.Constraint("DistanceX", 0, 3, 1, 3, 10.0),
    Sketcher.Constraint("DistanceY", 1, 3, 0, 3, 22.0),
    Sketcher.Constraint("Diameter", 0, 3.571875),
    Sketcher.Constraint("DistanceX", -1, 1, 0, 3, 5.64588),
    Sketcher.Constraint("DistanceY", -1, 1, 0, 3, 25.599824),
])
doc.recompute()
hole = doc.addObject("PartDesign::Hole", "Hole")
body.addObject(hole)
hole.Profile = sketch11
hole.ThreadType = "None"
hole.Diameter = 3.571875
hole.DepthType = "Dimension"
hole.Depth = 12.7
hole.DrillPoint = "Angled"
hole.DrillPointAngle = 118

sketch12 = doc.addObject("Sketcher::SketchObject", "Sketch011")
body.addObject(sketch12)
sketch12.AttachmentSupport = (doc.XY_Plane, [""])
sketch12.MapMode = "FlatFace"
add_polygon(sketch12, [(5, 36), (5, 29), (0, 29), (0, 36)])
sketch12.addConstraint([
    Sketcher.Constraint("Vertical", 0),
    Sketcher.Constraint("Horizontal", 1),
    Sketcher.Constraint("Vertical", 2),
    Sketcher.Constraint("Horizontal", 3),
    Sketcher.Constraint("DistanceX", 1, 2, 1, 1, 5.0),
    Sketcher.Constraint("DistanceY", 0, 2, 0, 1, 7.0),
    Sketcher.Constraint("DistanceY", -1, 1, 0, 2, 29.0777),
    Sketcher.Constraint("DistanceX", -1, 1, 0, 2, 5.33125),
])
pad6 = doc.addObject("PartDesign::Pad", "Pad005")
body.addObject(pad6)
pad6.Profile = sketch12
pad6.Length = 25
pad6.Reversed = True

doc.recompute()
